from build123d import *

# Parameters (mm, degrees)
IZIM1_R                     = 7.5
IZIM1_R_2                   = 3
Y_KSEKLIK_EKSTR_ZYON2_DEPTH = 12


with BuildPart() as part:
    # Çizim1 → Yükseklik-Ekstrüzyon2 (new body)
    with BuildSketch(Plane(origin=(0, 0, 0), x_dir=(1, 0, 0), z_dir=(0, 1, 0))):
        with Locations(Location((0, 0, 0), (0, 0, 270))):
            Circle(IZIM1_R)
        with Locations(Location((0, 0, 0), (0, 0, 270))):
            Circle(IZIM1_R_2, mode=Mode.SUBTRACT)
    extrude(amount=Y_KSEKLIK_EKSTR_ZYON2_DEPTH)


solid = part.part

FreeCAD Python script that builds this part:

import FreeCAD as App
import Part
import Sketcher

doc = App.newDocument("Part")
body = doc.addObject("PartDesign::Body", "Body")

# Sketch on XZ plane
sketch1 = body.newObject("Sketcher::SketchObject", "Sketch")
sketch1.AttachmentSupport = (doc.getObject("XZ_Plane"), [""])
sketch1.MapMode = "FlatFace"
sketch1.addGeometry([
    Part.Circle(App.Vector(0, 0, 0), App.Vector(0, 0, 1), 7.5),
    Part.Circle(App.Vector(0, 0, 0), App.Vector(0, 0, 1), 3),
], False)
sketch1.addConstraint([
    Sketcher.Constraint("Coincident", 0, 3, -1, 1),
    Sketcher.Constraint("Coincident", 1, 3, -1, 1),
    Sketcher.Constraint("Diameter", 0, 15.0),
    Sketcher.Constraint("Diameter", 1, 6.0),
])
pad1 = body.newObject("PartDesign::Pad", "Pad")
pad1.Profile = sketch1
pad1.Length = 12
pad1.Reversed = True

doc.recompute()
